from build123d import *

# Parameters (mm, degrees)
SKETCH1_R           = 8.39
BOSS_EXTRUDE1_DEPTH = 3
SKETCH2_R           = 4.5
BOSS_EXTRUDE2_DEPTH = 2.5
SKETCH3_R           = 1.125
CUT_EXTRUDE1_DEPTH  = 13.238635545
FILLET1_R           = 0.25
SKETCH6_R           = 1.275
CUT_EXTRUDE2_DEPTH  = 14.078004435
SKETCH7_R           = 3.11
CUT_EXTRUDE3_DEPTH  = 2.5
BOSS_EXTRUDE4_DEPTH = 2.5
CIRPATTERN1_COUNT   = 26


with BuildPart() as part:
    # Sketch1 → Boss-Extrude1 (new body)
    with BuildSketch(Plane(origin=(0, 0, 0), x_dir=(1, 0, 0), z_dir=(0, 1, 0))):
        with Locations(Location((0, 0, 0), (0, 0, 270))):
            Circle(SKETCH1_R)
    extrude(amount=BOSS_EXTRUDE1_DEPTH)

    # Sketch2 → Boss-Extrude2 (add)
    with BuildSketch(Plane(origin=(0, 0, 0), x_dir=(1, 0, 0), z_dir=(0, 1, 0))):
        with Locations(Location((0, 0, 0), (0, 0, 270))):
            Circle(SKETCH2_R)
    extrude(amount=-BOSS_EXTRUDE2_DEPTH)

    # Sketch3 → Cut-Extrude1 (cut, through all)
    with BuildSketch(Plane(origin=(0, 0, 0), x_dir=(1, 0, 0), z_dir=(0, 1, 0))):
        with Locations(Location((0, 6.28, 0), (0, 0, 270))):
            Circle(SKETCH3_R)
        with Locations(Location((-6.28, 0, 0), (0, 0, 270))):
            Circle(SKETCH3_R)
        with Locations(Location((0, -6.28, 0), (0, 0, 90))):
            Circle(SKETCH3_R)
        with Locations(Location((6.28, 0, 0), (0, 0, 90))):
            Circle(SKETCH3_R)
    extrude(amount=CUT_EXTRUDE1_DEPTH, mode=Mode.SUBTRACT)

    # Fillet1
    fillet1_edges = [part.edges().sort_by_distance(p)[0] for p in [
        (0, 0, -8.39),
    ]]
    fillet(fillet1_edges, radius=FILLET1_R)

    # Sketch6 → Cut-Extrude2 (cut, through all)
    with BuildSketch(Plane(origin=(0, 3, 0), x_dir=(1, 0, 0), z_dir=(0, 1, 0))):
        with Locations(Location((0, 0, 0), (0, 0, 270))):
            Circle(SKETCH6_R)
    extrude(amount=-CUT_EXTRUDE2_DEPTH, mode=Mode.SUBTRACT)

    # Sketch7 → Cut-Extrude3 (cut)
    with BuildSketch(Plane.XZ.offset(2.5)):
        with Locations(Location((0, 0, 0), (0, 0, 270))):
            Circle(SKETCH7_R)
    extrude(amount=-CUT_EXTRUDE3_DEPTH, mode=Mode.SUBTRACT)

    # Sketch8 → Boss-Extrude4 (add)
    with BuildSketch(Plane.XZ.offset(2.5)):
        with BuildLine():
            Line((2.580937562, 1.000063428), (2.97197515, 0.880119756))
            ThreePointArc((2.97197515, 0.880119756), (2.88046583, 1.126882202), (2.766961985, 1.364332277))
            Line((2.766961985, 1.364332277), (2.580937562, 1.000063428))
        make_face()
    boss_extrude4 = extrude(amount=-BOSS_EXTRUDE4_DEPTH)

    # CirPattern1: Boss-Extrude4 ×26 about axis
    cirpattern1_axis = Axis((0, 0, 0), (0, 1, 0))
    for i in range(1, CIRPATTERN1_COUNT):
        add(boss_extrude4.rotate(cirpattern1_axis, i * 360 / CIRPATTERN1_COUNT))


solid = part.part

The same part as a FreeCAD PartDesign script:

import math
import FreeCAD as App
import Part
import Sketcher

V = App.Vector


def edges_at(feature, points):
    """Names of the edges that pass closest to the given points."""
    edges = feature.Shape.Edges
    near = lambda p: min(range(len(edges)), key=lambda i: edges[i].distToShape(Part.Vertex(*p))[0])
    return sorted({f"Edge{near(p) + 1}" for p in points})

doc = App.newDocument("Part")
body = doc.addObject("PartDesign::Body", "Body")

sketch1 = doc.addObject("Sketcher::SketchObject", "Sketch")
body.addObject(sketch1)
sketch1.AttachmentSupport = (doc.XZ_Plane, [""])
sketch1.MapMode = "FlatFace"
sketch1.addGeometry(Part.Circle(V(0, 0, 0), V(0, 0, 1), 8), False)
sketch1.addConstraint([
    Sketcher.Constraint("Coincident", 0, 3, -1, 1),
    Sketcher.Constraint("Diameter", 0, 16.78),
])
pad1 = doc.addObject("PartDesign::Pad", "Pad")
body.addObject(pad1)
pad1.Profile = sketch1
pad1.Length = 3
pad1.Reversed = True

sketch2 = doc.addObject("Sketcher::SketchObject", "Sketch001")
body.addObject(sketch2)
sketch2.AttachmentSupport = (doc.XZ_Plane, [""])
sketch2.MapMode = "FlatFace"
sketch2.addGeometry(Part.Circle(V(0, 0, 0), V(0, 0, 1), 4.5), False)
sketch2.addConstraint([
    Sketcher.Constraint("Coincident", 0, 3, -1, 1),
    Sketcher.Constraint("Diameter", 0, 9.0),
])
pad2 = doc.addObject("PartDesign::Pad", "Pad001")
body.addObject(pad2)
pad2.Profile = sketch2
pad2.Length = 2.5

sketch3 = doc.addObject("Sketcher::SketchObject", "Sketch002")
body.addObject(sketch3)
sketch3.AttachmentSupport = (doc.XZ_Plane, [""])
sketch3.MapMode = "FlatFace"
sketch3.addGeometry([
    Part.Circle(V(0, -6.3, 0), V(0, 0, 1), 1.1),
    Part.Circle(V(-6.3, 0, 0), V(0, 0, 1), 1.1),
    Part.Circle(V(0, 6.3, 0), V(0, 0, 1), 1.1),
    Part.Circle(V(6.3, 0, 0), V(0, 0, 1), 1.1),
], False)
sketch3.addConstraint([
    Sketcher.Constraint("Equal", 0, 1),
    Sketcher.Constraint("Equal", 1, 2),
    Sketcher.Constraint("Equal", 2, 3),
    Sketcher.Constraint("Symmetric", 0, 3, 2, 3, -1, 1),
    Sketcher.Constraint("Symmetric", 1, 3, 3, 3, -1, 1),
    Sketcher.Constraint("PointOnObject", 0, 3, -2),
    Sketcher.Constraint("PointOnObject", 1, 3, -1),
    Sketcher.Constraint("Diameter", 0, 2.25),
    Sketcher.Constraint("DistanceY", 0, 3, -1, 1, 6.28),
    Sketcher.Constraint("DistanceX", 1, 3, -1, 1, 6.28),
])
pocket1 = doc.addObject("PartDesign::Pocket", "Pocket")
body.addObject(pocket1)
pocket1.Profile = sketch3
pocket1.Type = "ThroughAll"
doc.recompute()

fillet = doc.addObject("PartDesign::Fillet", "Fillet")
body.addObject(fillet)
fillet.Base = (pocket1, edges_at(pocket1, [(0, 0, -8.39)]))
fillet.Radius = 0.25

sketch4 = doc.addObject("Sketcher::SketchObject", "Sketch003")
body.addObject(sketch4)
sketch4.AttachmentSupport = (doc.XZ_Plane, [""])
sketch4.MapMode = "FlatFace"
sketch4.AttachmentOffset = App.Placement(V(0, 0, -3), App.Rotation())
sketch4.addGeometry(Part.Circle(V(0, 0, 0), V(0, 0, 1), 1.3), False)
sketch4.addConstraint([
    Sketcher.Constraint("Coincident", 0, 3, -1, 1),
    Sketcher.Constraint("Diameter", 0, 2.55),
])
pocket2 = doc.addObject("PartDesign::Pocket", "Pocket001")
body.addObject(pocket2)
pocket2.Profile = sketch4
pocket2.Type = "ThroughAll"
pocket2.Reversed = True

sketch5 = doc.addObject("Sketcher::SketchObject", "Sketch004")
body.addObject(sketch5)
sketch5.AttachmentSupport = (doc.XZ_Plane, [""])
sketch5.MapMode = "FlatFace"
sketch5.AttachmentOffset = App.Placement(V(0, 0, 2.5), App.Rotation())
sketch5.addGeometry(Part.Circle(V(0, 0, 0), V(0, 0, 1), 3.1), False)
sketch5.addConstraint([
    Sketcher.Constraint("Coincident", 0, 3, -1, 1),
    Sketcher.Constraint("Diameter", 0, 6.22),
])
pocket3 = doc.addObject("PartDesign::Pocket", "Pocket002")
body.addObject(pocket3)
pocket3.Profile = sketch5
pocket3.Length = 2.5

sketch6 = doc.addObject("Sketcher::SketchObject", "Sketch005")
body.addObject(sketch6)
sketch6.AttachmentSupport = (doc.XZ_Plane, [""])
sketch6.MapMode = "FlatFace"
sketch6.AttachmentOffset = App.Placement(V(0, 0, 2.5), App.Rotation())
sketch6.addGeometry([
    Part.LineSegment(V(2.58, 1, 0), V(2.97, 0.88, 0)),
    Part.ArcOfCircle(Part.Circle(V(0.21, 0, 0), V(0, 0, 1), 2.9), math.radians(17.75), math.radians(28.15)),
    Part.LineSegment(V(2.77, 1.36, 0), V(2.58, 1, 0)),
], False)
sketch6.addConstraint([
    Sketcher.Constraint("Coincident", 0, 2, 1, 1),
    Sketcher.Constraint("Coincident", 1, 2, 2, 1),
    Sketcher.Constraint("Coincident", 2, 2, 0, 1),
    Sketcher.Constraint("Equal", 0, 2),
    Sketcher.Constraint("Radius", 1, 2.9),
    Sketcher.Constraint("Distance", 0, 0.409019),
    Sketcher.Constraint("DistanceY", -1, 1, 0, 2, 0.88012),
    Sketcher.Constraint("DistanceX", -1, 1, 1, 2, 2.766962),
    Sketcher.Constraint("DistanceX", 1, 3, 0, 2, 2.762009),
    Sketcher.Constraint("DistanceY", 2, 2, 1, 2, 0.364269),
])
pad3 = doc.addObject("PartDesign::Pad", "Pad002")
body.addObject(pad3)
pad3.Profile = sketch6
pad3.Length = 2.5
pad3.Reversed = True
doc.recompute()

polarpattern = doc.addObject("PartDesign::PolarPattern", "PolarPattern")
body.addObject(polarpattern)
polarpattern.Originals = [pad3]
polarpattern.Axis = (doc.Y_Axis, [""])
polarpattern.Angle = 360
polarpattern.Occurrences = 26
body.Tip = polarpattern

doc.recompute()
